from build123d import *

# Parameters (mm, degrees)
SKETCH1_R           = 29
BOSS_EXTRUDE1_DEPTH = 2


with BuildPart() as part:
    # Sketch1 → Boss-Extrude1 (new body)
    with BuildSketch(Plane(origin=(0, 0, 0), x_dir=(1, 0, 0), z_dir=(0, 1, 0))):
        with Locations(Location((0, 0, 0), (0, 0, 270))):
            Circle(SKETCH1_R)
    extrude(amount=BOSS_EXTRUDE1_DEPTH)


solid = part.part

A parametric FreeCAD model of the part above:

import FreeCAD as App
import Part
import Sketcher

V = App.Vector

doc = App.newDocument("Part")
params = doc.addObject("Spreadsheet::Sheet", "Params")
for row, (alias, value) in enumerate([
    ("sketch1_diameter", "58 mm"),
    ("pad1_length", "2 mm"),
], start=1):
    params.set(f"A{row}", alias)
    params.set(f"B{row}", "=" + value)
    params.setAlias(f"B{row}", alias)

body = doc.addObject("PartDesign::Body", "Body")

# Sketch on XZ plane
sketch1 = doc.addObject("Sketcher::SketchObject", "Sketch")
body.addObject(sketch1)
sketch1.AttachmentSupport = (doc.XZ_Plane, [""])
sketch1.MapMode = "FlatFace"
sketch1.addGeometry(Part.Circle(V(0, 0, 0), V(0, 0, 1), 29), False)
sketch1.addConstraint(Sketcher.Constraint("Coincident", 0, 3, -1, 1))
sketch1.addConstraint(Sketcher.Constraint("Diameter", 0, 58.0))
sketch1.setExpression("Constraints[1]", "Params.sketch1_diameter")
pad1 = doc.addObject("PartDesign::Pad", "Pad")
body.addObject(pad1)
pad1.Profile = sketch1
pad1.setExpression("Length", "Params.pad1_length")
pad1.Reversed = True

doc.recompute()
